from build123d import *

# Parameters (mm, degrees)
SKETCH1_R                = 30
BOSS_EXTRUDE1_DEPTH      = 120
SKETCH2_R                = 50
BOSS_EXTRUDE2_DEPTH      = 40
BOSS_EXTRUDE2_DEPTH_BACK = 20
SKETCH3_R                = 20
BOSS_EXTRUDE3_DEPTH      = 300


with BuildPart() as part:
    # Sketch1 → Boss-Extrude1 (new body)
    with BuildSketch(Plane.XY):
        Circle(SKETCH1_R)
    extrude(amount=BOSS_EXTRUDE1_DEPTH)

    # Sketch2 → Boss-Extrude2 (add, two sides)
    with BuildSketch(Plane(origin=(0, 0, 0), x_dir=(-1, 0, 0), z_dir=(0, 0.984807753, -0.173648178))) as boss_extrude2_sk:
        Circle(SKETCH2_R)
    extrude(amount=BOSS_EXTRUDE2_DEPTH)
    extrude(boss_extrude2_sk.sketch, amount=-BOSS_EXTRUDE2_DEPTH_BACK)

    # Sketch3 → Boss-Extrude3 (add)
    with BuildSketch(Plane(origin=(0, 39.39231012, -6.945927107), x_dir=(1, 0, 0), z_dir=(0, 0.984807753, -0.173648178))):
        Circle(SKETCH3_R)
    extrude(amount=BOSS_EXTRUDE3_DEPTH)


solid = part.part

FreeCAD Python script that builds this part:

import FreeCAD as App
import Part
import Sketcher

V = App.Vector
Q = App.Units.Quantity

doc = App.newDocument("Part")
body = doc.addObject("PartDesign::Body", "Body")

sketch1 = doc.addObject("Sketcher::SketchObject", "Sketch")
body.addObject(sketch1)
sketch1.AttachmentSupport = (doc.XY_Plane, [""])
sketch1.MapMode = "FlatFace"
sketch1.addGeometry(Part.Circle(V(0, 0, 0), V(0, 0, 1), 30), False)
sketch1.addConstraint([
    Sketcher.Constraint("Coincident", 0, 3, -1, 1),
    Sketcher.Constraint("Diameter", 0, Q("60 mm")),
])
pad1 = doc.addObject("PartDesign::Pad", "Pad")
body.addObject(pad1)
pad1.Profile = sketch1
pad1.Length = 120

sketch2 = doc.addObject("Sketcher::SketchObject", "Sketch001")
body.addObject(sketch2)
sketch2.Placement = App.Placement(V(0, 0, 0), App.Rotation(V(-1, 0, 0), V(0, 0.173648178, 0.984807753), V(0, 0.984807753, -0.173648178), "ZXY"))
sketch2.addGeometry(Part.Circle(V(0, 0, 0), V(0, 0, 1), 50), False)
sketch2.addConstraint([
    Sketcher.Constraint("Coincident", 0, 3, -1, 1),
    Sketcher.Constraint("Diameter", 0, Q("100 mm")),
])
pad2 = doc.addObject("PartDesign::Pad", "Pad001")
body.addObject(pad2)
pad2.Profile = sketch2
pad2.Type = "TwoLengths"
pad2.Length = 40
pad2.Length2 = 20

sketch3 = doc.addObject("Sketcher::SketchObject", "Sketch002")
body.addObject(sketch3)
sketch3.Placement = App.Placement(V(0, 39.39231, -6.945927), App.Rotation(V(1, 0, 0), V(0, -0.173648178, -0.984807753), V(0, 0.984807753, -0.173648178), "ZXY"))
sketch3.addGeometry(Part.Circle(V(0, 0, 0), V(0, 0, 1), 20), False)
sketch3.addConstraint([
    Sketcher.Constraint("Coincident", 0, 3, -1, 1),
    Sketcher.Constraint("Diameter", 0, Q("40 mm")),
])
pad3 = doc.addObject("PartDesign::Pad", "Pad002")
body.addObject(pad3)
pad3.Profile = sketch3
pad3.Length = 300

doc.recompute()
